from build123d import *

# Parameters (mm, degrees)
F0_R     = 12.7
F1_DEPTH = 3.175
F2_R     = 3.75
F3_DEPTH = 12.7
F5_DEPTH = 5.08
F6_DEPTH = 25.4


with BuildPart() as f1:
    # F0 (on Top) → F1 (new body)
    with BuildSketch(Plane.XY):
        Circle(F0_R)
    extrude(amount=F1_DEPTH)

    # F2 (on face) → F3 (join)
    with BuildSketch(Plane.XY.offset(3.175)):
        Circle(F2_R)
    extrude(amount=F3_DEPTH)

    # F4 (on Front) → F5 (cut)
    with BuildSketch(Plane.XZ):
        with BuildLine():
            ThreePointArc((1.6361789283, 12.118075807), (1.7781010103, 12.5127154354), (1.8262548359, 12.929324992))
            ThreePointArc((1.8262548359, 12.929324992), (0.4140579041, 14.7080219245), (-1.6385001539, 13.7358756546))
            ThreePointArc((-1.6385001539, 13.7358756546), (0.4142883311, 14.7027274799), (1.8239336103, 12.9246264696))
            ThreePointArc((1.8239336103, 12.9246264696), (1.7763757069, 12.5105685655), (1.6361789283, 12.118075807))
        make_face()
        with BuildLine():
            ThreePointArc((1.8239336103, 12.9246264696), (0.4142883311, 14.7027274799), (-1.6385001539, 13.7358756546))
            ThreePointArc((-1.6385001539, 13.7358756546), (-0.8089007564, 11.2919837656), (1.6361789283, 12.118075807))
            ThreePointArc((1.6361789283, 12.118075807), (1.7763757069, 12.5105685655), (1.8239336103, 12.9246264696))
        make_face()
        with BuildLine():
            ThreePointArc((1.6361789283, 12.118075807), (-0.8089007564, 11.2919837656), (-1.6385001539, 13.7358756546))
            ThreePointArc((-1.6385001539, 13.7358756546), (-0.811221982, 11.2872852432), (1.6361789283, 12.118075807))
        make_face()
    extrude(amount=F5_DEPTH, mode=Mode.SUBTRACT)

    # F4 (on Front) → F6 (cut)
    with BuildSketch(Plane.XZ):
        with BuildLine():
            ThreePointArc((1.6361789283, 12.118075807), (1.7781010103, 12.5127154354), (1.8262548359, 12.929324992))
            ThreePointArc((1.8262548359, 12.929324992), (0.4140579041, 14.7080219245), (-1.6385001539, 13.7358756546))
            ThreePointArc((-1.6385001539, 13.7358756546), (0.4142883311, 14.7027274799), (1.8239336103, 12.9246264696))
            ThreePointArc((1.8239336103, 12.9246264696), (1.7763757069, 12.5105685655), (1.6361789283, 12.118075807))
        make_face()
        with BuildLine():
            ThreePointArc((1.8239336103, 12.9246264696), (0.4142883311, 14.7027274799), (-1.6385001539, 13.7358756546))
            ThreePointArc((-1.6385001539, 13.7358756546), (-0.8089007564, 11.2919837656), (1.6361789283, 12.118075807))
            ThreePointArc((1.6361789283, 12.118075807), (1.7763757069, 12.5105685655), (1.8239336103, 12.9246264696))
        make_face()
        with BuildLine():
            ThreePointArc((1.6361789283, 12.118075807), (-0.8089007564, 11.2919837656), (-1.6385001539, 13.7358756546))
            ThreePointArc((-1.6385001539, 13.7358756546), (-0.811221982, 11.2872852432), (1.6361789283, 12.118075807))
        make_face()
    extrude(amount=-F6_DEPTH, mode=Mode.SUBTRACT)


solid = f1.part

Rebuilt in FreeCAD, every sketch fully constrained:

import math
import FreeCAD as App
import Part
import Sketcher
from FreeCAD import Vector
Q = App.Units.Quantity

doc = App.newDocument("Part")
body = doc.addObject("PartDesign::Body", "Body")

# Sketch on XY plane
sketch1 = body.newObject("Sketcher::SketchObject", "Sketch")
sketch1.AttachmentSupport = (doc.getObject("XY_Plane"), [""])
sketch1.MapMode = "FlatFace"
sketch1.addGeometry(Part.Circle(Vector(0, 0, 0), Vector(0, 0, 1), 13), False)
sketch1.addConstraint(Sketcher.Constraint("Coincident", 0, 3, -1, 1))
sketch1.addConstraint(Sketcher.Constraint("Diameter", 0, Q("1 in")))
pad1 = body.newObject("PartDesign::Pad", "Pad")
pad1.Profile = sketch1
pad1.Length = Q("0.125 in")

# Sketch on XY plane
sketch2 = body.newObject("Sketcher::SketchObject", "Sketch001")
sketch2.AttachmentSupport = (doc.getObject("XY_Plane"), [""])
sketch2.MapMode = "FlatFace"
sketch2.AttachmentOffset = App.Placement(Vector(0, 0, 0.125 * 25.4), App.Rotation())
sketch2.addGeometry(Part.Circle(Vector(0, 0, 0), Vector(0, 0, 1), 3.8), False)
sketch2.addConstraint(Sketcher.Constraint("Coincident", 0, 3, -1, 1))
sketch2.addConstraint(Sketcher.Constraint("Diameter", 0, 7.5))
pad2 = body.newObject("PartDesign::Pad", "Pad001")
pad2.Profile = sketch2
pad2.Length = Q("0.5 in")

# Sketch on XZ plane
sketch3 = body.newObject("Sketcher::SketchObject", "Sketch002")
sketch3.AttachmentSupport = (doc.getObject("XZ_Plane"), [""])
sketch3.MapMode = "FlatFace"
sketch3.addGeometry(Part.ArcOfCircle(Part.Circle(Vector(0, 12.929325, 0), Vector(0, 0, 1), 1.826255), math.radians(-26.373104), math.radians(0)), False)
sketch3.addGeometry(Part.ArcOfCircle(Part.Circle(Vector(0, 12.929325, 0), Vector(0, 0, 1), 1.826255), math.radians(0), math.radians(153.791312)), False)
sketch3.addGeometry(Part.ArcOfCircle(Part.Circle(Vector(-0.002321, 12.924626, 0), Vector(0, 0, 1), 1.826255), math.radians(153.626896), math.radians(333.791312)), False)
sketch3.addConstraint(Sketcher.Constraint("Tangent", 0, 2, 1, 1))
sketch3.addConstraint(Sketcher.Constraint("Coincident", 1, 2, 2, 1))
sketch3.addConstraint(Sketcher.Constraint("Coincident", 2, 2, 0, 1))
sketch3.addConstraint(Sketcher.Constraint("Equal", 0, 1))
sketch3.addConstraint(Sketcher.Constraint("PointOnObject", 0, 3, -2))
sketch3.addConstraint(Sketcher.Constraint("Horizontal", 1, 3, 0, 2))
sketch3.addConstraint(Sketcher.Constraint("Radius", 0, 1.826255))
sketch3.addConstraint(Sketcher.Constraint("Radius", 2, 1.826255))
sketch3.addConstraint(Sketcher.Constraint("DistanceX", 1, 2, -1, 1, 1.6385))
sketch3.addConstraint(Sketcher.Constraint("DistanceY", 2, 3, 0, 3, 0.004699))
sketch3.addConstraint(Sketcher.Constraint("DistanceY", -1, 1, 0, 3, 12.929325))
pocket1 = body.newObject("PartDesign::Pocket", "Pocket")
pocket1.Profile = sketch3
pocket1.Length = Q("0.2 in")
pocket1.Reversed = True

# Sketch on XZ plane
sketch4 = body.newObject("Sketcher::SketchObject", "Sketch003")
sketch4.AttachmentSupport = (doc.getObject("XZ_Plane"), [""])
sketch4.MapMode = "FlatFace"
sketch4.addGeometry(Part.ArcOfCircle(Part.Circle(Vector(0, 12.929325, 0), Vector(0, 0, 1), 1.826255), math.radians(-26.373104), math.radians(0)), False)
sketch4.addGeometry(Part.ArcOfCircle(Part.Circle(Vector(0, 12.929325, 0), Vector(0, 0, 1), 1.826255), math.radians(0), math.radians(153.791312)), False)
sketch4.addGeometry(Part.ArcOfCircle(Part.Circle(Vector(-0.002321, 12.924626, 0), Vector(0, 0, 1), 1.826255), math.radians(153.626896), math.radians(333.791312)), False)
sketch4.addConstraint(Sketcher.Constraint("Tangent", 0, 2, 1, 1))
sketch4.addConstraint(Sketcher.Constraint("Coincident", 1, 2, 2, 1))
sketch4.addConstraint(Sketcher.Constraint("Coincident", 2, 2, 0, 1))
sketch4.addConstraint(Sketcher.Constraint("Equal", 0, 1))
sketch4.addConstraint(Sketcher.Constraint("PointOnObject", 0, 3, -2))
sketch4.addConstraint(Sketcher.Constraint("Horizontal", 1, 3, 0, 2))
sketch4.addConstraint(Sketcher.Constraint("Radius", 0, 1.826255))
sketch4.addConstraint(Sketcher.Constraint("Radius", 2, 1.826255))
sketch4.addConstraint(Sketcher.Constraint("DistanceX", 1, 2, -1, 1, 1.6385))
sketch4.addConstraint(Sketcher.Constraint("DistanceY", 2, 3, 0, 3, 0.004699))
sketch4.addConstraint(Sketcher.Constraint("DistanceY", -1, 1, 0, 3, 12.929325))
pocket2 = body.newObject("PartDesign::Pocket", "Pocket001")
pocket2.Profile = sketch4
pocket2.Length = Q("1 in")

doc.recompute()
